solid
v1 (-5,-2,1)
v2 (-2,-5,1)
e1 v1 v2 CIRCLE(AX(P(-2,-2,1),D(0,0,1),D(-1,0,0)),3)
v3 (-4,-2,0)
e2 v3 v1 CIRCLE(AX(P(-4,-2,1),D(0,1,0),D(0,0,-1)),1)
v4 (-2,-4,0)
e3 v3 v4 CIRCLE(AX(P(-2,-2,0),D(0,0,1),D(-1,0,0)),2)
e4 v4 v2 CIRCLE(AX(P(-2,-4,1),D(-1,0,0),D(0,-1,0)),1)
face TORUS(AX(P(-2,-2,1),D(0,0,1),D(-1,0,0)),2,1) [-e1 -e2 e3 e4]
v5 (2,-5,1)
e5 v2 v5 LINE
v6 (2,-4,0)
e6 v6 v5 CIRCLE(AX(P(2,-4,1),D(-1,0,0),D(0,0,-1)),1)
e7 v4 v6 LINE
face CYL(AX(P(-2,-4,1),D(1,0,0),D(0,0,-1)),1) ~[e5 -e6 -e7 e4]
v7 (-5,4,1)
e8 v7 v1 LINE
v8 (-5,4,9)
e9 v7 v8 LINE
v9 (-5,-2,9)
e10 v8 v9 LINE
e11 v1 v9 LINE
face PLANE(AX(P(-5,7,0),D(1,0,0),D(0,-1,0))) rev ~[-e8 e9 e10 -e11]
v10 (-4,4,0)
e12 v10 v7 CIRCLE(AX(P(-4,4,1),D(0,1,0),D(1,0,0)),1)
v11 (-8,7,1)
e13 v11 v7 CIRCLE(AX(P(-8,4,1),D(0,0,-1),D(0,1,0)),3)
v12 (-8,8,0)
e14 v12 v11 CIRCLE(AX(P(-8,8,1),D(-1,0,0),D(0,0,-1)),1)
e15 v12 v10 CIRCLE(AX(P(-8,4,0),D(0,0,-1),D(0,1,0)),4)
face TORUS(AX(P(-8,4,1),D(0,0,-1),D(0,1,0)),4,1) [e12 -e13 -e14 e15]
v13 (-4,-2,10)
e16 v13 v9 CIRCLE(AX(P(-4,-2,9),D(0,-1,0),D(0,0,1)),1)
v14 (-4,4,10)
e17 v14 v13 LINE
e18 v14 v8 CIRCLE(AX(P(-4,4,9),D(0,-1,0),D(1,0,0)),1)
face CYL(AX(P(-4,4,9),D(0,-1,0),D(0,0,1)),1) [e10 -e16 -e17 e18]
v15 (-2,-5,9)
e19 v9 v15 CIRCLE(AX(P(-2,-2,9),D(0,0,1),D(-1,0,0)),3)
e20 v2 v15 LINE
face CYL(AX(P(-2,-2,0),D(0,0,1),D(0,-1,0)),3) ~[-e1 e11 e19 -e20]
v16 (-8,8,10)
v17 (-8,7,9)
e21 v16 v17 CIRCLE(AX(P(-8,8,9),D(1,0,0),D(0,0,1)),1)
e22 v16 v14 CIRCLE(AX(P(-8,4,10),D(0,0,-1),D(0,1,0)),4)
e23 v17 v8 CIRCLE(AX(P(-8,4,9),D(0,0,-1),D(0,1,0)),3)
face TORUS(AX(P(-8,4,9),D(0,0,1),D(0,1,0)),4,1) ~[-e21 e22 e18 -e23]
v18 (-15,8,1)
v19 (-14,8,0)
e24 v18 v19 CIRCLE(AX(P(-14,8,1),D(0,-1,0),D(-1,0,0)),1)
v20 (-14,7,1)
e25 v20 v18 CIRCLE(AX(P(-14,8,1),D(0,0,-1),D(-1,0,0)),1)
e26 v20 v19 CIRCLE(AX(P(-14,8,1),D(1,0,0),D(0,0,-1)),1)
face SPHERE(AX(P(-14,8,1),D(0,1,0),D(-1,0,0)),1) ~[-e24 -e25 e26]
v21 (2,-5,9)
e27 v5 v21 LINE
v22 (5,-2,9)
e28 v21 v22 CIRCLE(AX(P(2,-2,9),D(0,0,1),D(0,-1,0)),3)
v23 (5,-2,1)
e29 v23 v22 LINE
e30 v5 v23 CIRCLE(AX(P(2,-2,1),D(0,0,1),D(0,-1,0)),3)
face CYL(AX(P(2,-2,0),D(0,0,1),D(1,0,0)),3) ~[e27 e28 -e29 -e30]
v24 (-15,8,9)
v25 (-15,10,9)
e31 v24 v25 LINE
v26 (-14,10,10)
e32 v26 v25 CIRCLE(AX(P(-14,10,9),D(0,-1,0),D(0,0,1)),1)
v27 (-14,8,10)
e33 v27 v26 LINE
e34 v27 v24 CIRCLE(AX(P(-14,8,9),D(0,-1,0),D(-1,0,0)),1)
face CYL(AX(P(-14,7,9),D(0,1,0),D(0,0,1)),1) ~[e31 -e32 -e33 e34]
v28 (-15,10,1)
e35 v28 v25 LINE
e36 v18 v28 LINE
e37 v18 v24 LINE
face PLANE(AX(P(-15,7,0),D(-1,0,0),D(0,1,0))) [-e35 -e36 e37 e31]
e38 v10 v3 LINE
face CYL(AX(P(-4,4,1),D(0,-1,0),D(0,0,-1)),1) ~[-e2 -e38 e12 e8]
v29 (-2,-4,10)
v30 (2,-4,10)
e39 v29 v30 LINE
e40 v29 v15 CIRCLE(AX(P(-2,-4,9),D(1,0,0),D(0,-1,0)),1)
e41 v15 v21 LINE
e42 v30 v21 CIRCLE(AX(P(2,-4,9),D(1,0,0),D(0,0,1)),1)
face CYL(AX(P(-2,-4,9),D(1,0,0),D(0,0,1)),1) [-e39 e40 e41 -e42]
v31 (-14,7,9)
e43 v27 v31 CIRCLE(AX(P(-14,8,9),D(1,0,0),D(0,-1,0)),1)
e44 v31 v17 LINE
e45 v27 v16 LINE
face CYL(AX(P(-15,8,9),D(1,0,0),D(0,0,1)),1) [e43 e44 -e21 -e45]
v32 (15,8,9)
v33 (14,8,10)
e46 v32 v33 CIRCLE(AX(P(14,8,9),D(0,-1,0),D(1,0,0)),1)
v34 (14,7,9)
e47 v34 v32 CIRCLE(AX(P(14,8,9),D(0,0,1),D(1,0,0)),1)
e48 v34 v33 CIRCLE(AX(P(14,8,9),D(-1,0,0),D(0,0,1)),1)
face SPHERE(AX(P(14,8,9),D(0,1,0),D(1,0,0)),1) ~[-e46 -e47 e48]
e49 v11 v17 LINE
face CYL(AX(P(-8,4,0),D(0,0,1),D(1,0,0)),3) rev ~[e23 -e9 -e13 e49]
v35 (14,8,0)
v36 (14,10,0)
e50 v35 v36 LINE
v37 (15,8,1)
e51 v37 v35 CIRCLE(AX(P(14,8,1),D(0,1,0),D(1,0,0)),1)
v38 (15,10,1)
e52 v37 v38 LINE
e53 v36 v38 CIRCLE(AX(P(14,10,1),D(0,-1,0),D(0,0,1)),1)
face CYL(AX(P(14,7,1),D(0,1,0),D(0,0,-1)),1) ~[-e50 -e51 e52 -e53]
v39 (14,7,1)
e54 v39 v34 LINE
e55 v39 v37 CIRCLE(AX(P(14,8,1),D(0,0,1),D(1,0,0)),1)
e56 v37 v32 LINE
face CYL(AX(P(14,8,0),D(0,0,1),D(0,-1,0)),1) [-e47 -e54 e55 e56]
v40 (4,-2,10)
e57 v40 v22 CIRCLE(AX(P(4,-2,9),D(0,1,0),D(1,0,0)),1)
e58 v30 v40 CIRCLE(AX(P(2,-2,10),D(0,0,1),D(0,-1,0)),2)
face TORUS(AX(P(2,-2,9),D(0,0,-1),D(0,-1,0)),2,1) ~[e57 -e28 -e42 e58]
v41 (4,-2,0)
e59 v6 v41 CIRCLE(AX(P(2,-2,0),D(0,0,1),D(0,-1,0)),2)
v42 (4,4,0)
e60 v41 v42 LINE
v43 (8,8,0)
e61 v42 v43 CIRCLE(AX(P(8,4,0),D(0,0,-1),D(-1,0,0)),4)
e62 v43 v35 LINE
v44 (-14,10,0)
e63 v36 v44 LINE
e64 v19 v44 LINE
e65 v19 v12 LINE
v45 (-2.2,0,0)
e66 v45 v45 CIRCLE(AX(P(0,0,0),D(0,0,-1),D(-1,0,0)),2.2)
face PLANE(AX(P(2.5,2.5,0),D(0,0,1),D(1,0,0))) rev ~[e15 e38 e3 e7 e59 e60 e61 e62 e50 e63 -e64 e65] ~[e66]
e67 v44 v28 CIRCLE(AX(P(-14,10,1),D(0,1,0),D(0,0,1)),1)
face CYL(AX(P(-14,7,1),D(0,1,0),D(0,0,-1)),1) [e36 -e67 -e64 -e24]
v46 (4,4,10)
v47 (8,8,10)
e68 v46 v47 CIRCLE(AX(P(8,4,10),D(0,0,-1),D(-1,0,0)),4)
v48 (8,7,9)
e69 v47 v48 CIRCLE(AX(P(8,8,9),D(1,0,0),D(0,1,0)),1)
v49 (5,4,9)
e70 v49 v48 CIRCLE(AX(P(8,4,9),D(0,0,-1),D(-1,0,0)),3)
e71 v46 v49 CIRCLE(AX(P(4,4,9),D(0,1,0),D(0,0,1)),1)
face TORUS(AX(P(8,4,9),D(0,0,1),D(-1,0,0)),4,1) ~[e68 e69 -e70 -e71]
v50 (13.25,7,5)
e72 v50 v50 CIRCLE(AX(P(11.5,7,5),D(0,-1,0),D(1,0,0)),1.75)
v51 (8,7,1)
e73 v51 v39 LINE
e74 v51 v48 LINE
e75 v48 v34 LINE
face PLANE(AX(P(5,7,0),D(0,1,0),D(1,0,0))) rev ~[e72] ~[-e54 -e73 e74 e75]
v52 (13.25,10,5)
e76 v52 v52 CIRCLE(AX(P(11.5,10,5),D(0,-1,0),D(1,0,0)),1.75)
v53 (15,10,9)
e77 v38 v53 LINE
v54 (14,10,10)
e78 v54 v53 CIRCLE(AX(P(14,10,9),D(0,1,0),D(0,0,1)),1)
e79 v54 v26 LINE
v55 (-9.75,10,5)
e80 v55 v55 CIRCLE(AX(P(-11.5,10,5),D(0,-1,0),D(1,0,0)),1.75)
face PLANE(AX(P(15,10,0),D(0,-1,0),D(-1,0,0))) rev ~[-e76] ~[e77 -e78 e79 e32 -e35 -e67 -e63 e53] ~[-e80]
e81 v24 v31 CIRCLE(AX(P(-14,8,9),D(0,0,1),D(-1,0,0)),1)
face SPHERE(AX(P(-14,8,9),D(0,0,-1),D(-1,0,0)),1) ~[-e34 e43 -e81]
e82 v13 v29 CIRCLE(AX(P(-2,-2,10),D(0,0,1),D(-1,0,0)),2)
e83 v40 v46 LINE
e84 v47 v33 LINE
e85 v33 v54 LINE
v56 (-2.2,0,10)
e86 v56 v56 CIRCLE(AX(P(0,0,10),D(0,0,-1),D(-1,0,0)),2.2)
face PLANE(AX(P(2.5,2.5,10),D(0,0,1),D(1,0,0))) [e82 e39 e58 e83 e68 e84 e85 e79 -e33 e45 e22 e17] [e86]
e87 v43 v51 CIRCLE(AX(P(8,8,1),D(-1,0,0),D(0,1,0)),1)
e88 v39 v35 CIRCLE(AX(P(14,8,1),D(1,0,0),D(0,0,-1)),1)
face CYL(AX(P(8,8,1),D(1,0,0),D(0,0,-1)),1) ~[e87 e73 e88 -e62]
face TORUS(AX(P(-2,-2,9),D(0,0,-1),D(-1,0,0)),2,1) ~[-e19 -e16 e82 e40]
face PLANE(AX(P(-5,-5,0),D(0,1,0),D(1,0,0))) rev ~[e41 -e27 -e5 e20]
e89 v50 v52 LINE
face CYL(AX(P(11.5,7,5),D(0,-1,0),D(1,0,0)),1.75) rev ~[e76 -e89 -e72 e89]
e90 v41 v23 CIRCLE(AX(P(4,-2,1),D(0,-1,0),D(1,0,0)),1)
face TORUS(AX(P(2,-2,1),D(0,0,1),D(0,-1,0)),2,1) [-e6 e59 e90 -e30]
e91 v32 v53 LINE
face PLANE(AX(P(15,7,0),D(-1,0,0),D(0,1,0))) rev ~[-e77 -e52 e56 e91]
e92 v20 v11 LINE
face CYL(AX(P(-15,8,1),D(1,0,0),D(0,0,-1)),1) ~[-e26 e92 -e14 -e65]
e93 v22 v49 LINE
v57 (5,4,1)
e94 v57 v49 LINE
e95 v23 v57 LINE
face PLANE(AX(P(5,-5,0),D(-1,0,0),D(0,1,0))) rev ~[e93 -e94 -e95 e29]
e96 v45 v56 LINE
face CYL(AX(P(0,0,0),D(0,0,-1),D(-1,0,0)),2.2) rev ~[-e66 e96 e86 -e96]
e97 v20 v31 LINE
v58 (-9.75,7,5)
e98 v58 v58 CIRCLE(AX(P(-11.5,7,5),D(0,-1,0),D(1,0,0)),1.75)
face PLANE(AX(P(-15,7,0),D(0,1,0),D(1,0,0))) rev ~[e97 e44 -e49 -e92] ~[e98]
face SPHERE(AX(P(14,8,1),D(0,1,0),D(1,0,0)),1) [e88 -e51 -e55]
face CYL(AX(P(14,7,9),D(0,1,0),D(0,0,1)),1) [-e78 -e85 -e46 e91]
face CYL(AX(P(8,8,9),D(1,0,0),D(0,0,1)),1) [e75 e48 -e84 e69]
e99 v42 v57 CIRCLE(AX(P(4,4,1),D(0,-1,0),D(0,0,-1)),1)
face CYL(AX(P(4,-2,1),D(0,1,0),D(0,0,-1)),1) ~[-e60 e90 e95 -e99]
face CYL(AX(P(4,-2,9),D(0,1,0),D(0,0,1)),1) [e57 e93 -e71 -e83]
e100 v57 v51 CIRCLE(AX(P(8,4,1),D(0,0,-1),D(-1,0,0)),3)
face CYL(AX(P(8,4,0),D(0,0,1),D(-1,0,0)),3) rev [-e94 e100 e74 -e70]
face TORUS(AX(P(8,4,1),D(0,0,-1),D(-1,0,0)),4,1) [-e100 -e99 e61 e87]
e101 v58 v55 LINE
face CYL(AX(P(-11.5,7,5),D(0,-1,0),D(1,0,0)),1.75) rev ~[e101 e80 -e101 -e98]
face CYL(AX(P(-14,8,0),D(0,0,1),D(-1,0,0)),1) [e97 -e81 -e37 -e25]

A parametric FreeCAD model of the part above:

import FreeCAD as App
import Part
import Sketcher


def edges_at(feature, points):
    """Names of the edges that pass closest to the given points."""
    edges = feature.Shape.Edges
    near = lambda p: min(range(len(edges)), key=lambda i: edges[i].distToShape(Part.Vertex(*p))[0])
    return sorted({f"Edge{near(p) + 1}" for p in points})


def add_polygon(sketch, points):
    """Adds a closed chain of lines whose ends are joined by coincident constraints."""
    first, n = sketch.GeometryCount, len(points)
    for a, b in zip(points, points[1:] + points[:1]):
        sketch.addGeometry(Part.LineSegment(App.Vector(*a, 0), App.Vector(*b, 0)), False)
    for i in range(n):
        sketch.addConstraint(Sketcher.Constraint("Coincident", first + i, 2, first + (i + 1) % n, 1))

doc = App.newDocument("Part")
body = doc.addObject("PartDesign::Body", "Body")

# Sketch on XY plane
sketch1 = body.newObject("Sketcher::SketchObject", "Sketch")
sketch1.AttachmentSupport = (doc.getObject("XY_Plane"), [""])
sketch1.MapMode = "FlatFace"
add_polygon(sketch1, [(5, -5), (5, 7), (15, 7), (15, 10), (-15, 10), (-15, 7), (-5, 7), (-5, -5)])  # lines 0-7
sketch1.addConstraint(Sketcher.Constraint("Vertical", 0))
sketch1.addConstraint(Sketcher.Constraint("Horizontal", 1))
sketch1.addConstraint(Sketcher.Constraint("Vertical", 2))
sketch1.addConstraint(Sketcher.Constraint("Horizontal", 3))
sketch1.addConstraint(Sketcher.Constraint("Vertical", 4))
sketch1.addConstraint(Sketcher.Constraint("Horizontal", 5))
sketch1.addConstraint(Sketcher.Constraint("Vertical", 6))
sketch1.addConstraint(Sketcher.Constraint("Horizontal", 7))
sketch1.addConstraint(Sketcher.Constraint("Symmetric", 1, 2, 4, 2, -2))
sketch1.addConstraint(Sketcher.Constraint("Equal", 1, 5))
sketch1.addConstraint(Sketcher.Constraint("Equal", 5, 7))
sketch1.addConstraint(Sketcher.Constraint("DistanceX", 1, 1, 1, 2, 10.0))
sketch1.addConstraint(Sketcher.Constraint("DistanceY", 0, 1, 0, 2, 12.0))
sketch1.addConstraint(Sketcher.Constraint("DistanceY", 2, 1, 2, 2, 3.0))
sketch1.addConstraint(Sketcher.Constraint("DistanceY", -1, 1, 0, 2, 7.0))
pad1 = body.newObject("PartDesign::Pad", "Pad")
pad1.Profile = sketch1
pad1.Length = 10

# Sketch on XY plane
sketch2 = body.newObject("Sketcher::SketchObject", "Sketch001")
sketch2.AttachmentSupport = (doc.getObject("XY_Plane"), [""])
sketch2.MapMode = "FlatFace"
sketch2.addGeometry(Part.Circle(App.Vector(0, 0, 0), App.Vector(0, 0, 1), 2.2), False)
sketch2.addConstraint(Sketcher.Constraint("Coincident", 0, 3, -1, 1))
sketch2.addConstraint(Sketcher.Constraint("Diameter", 0, 4.4))
pocket1 = body.newObject("PartDesign::Pocket", "Pocket")
pocket1.Profile = sketch2
pocket1.Type = "ThroughAll"
pocket1.Reversed = True

# Sketch on XZ plane
sketch3 = body.newObject("Sketcher::SketchObject", "Sketch002")
sketch3.AttachmentSupport = (doc.getObject("XZ_Plane"), [""])
sketch3.MapMode = "FlatFace"
sketch3.AttachmentOffset = App.Placement(App.Vector(0, 0, -7), App.Rotation())
sketch3.addGeometry(Part.Circle(App.Vector(-11.5, 5, 0), App.Vector(0, 0, 1), 1.75), False)
sketch3.addGeometry(Part.Circle(App.Vector(11.5, 5, 0), App.Vector(0, 0, 1), 1.75), False)
sketch3.addConstraint(Sketcher.Constraint("Equal", 0, 1))
sketch3.addConstraint(Sketcher.Constraint("Symmetric", 0, 3, 1, 3, -2))
sketch3.addConstraint(Sketcher.Constraint("Diameter", 0, 3.5))
sketch3.addConstraint(Sketcher.Constraint("DistanceY", -1, 1, 0, 3, 5.0))
sketch3.addConstraint(Sketcher.Constraint("DistanceX", 0, 3, 1, 3, 23.0))
pocket2 = body.newObject("PartDesign::Pocket", "Pocket001")
pocket2.Profile = sketch3
pocket2.Type = "ThroughAll"
doc.recompute()

fillet = body.newObject("PartDesign::Fillet", "Fillet")
fillet.Base = (pocket2, edges_at(pocket2, [
    (5, -5, 5),
    (-5, -5, 5),
    (-5, 7, 5),
    (5, 7, 5),
]))
fillet.Radius = 3
doc.recompute()

fillet2 = body.newObject("PartDesign::Fillet", "Fillet001")
fillet2.Base = (fillet, edges_at(fillet, [
    (-15, 8.5, 0),
    (15, 8.5, 0),
    (15, 8.5, 10),
    (-15, 7, 5),
    (15, 7, 5),
    (-15, 8.5, 10),
    (-5, 1, 0),
    (-5, 1, 10),
    (-11.5, 7, 0),
    (-11.5, 7, 10),
    (11.5, 7, 0),
    (11.5, 7, 10),
    (5, 1, 0),
    (5, 1, 10),
    (0, -5, 0),
    (0, -5, 10),
    (4.121, -4.121, 0),
    (-4.121, -4.121, 0),
    (4.121, -4.121, 10),
    (-4.121, -4.121, 10),
    (-5.879, 6.121, 0),
    (-5.879, 6.121, 10),
    (5.879, 6.121, 0),
    (5.879, 6.121, 10),
]))
fillet2.Radius = 1

doc.recompute()
